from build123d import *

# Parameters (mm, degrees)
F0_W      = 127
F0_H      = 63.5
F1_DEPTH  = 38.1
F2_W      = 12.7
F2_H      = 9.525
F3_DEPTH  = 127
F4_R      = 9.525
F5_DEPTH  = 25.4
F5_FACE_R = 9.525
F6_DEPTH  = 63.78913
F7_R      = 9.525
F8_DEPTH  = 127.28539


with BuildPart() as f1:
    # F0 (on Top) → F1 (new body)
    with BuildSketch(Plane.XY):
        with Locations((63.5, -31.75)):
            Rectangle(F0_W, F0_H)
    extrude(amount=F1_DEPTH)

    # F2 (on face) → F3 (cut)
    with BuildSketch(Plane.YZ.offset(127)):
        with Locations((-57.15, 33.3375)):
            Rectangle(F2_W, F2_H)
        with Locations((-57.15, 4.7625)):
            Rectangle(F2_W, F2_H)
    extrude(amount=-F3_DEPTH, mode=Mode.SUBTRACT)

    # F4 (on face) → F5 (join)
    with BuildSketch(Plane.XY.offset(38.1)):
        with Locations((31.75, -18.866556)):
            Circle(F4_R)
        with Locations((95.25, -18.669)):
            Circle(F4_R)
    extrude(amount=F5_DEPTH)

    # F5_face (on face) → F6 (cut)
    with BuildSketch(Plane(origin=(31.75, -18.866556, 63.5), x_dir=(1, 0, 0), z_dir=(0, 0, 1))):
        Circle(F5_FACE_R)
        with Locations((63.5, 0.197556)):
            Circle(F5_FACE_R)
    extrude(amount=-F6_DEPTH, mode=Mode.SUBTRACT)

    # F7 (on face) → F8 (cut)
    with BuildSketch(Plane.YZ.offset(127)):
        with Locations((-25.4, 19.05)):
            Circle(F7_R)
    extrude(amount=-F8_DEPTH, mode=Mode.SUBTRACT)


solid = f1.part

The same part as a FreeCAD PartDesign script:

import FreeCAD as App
import Part
import Sketcher
from FreeCAD import Vector
Q = App.Units.Quantity

doc = App.newDocument("Part")
params = doc.addObject("Spreadsheet::Sheet", "Params")
for row, (alias, value) in enumerate([
    ("sketch1_width", "5 in"),
    ("sketch1_height", "2.5 in"),
    ("pad1_length", "1.5 in"),
    ("sketch2_width", "0.5 in"),
    ("sketch2_height", "0.375 in"),
    ("pocket1_length", "5 in"),
    ("sketch3_diameter", "0.75 in"),
    ("pad2_length", "1 in"),
    ("sketch4_diameter", "0.75 in"),
    ("pocket2_length", "63.78913 mm"),
    ("sketch5_diameter", "0.75 in"),
    ("pocket3_length", "127.28539 mm"),
], start=1):
    params.set(f"A{row}", alias)
    params.set(f"B{row}", "=" + value)
    params.setAlias(f"B{row}", alias)

body = doc.addObject("PartDesign::Body", "Body")

# Sketch on XY plane
sketch1 = doc.addObject("Sketcher::SketchObject", "Sketch")
body.addObject(sketch1)
sketch1.AttachmentSupport = (doc.XY_Plane, [""])
sketch1.MapMode = "FlatFace"
sketch1.addGeometry([
    Part.LineSegment(Vector(0, 0, 0), Vector(0, -64, 0)),
    Part.LineSegment(Vector(0, -64, 0), Vector(127, -64, 0)),
    Part.LineSegment(Vector(127, -64, 0), Vector(127, 0, 0)),
    Part.LineSegment(Vector(127, 0, 0), Vector(0, 0, 0)),
], False)
sketch1.addConstraint([
    Sketcher.Constraint("Coincident", 0, 2, 1, 1),
    Sketcher.Constraint("Coincident", 1, 2, 2, 1),
    Sketcher.Constraint("Coincident", 2, 2, 3, 1),
    Sketcher.Constraint("Coincident", 3, 2, 0, 1),
    Sketcher.Constraint("Vertical", 0),
    Sketcher.Constraint("Horizontal", 1),
    Sketcher.Constraint("Vertical", 2),
    Sketcher.Constraint("Horizontal", 3),
    Sketcher.Constraint("Coincident", 3, 2, -1, 1),
    Sketcher.Constraint("DistanceX", 1, 1, 1, 2, Q("5 in")),
    Sketcher.Constraint("DistanceY", 0, 2, 0, 1, Q("2.5 in")),
])
sketch1.setExpression("Constraints[9]", "Params.sketch1_width")
sketch1.setExpression("Constraints[10]", "Params.sketch1_height")
pad1 = doc.addObject("PartDesign::Pad", "Pad")
body.addObject(pad1)
pad1.Profile = sketch1
pad1.setExpression("Length", "Params.pad1_length")

# Sketch on YZ plane
sketch2 = doc.addObject("Sketcher::SketchObject", "Sketch001")
body.addObject(sketch2)
sketch2.AttachmentSupport = (doc.YZ_Plane, [""])
sketch2.MapMode = "FlatFace"
sketch2.AttachmentOffset = App.Placement(Vector(0, 0, 5 * 25.4), App.Rotation())
sketch2.addGeometry([
    Part.LineSegment(Vector(-64, 38, 0), Vector(-64, 29, 0)),  # 0
    Part.LineSegment(Vector(-64, 29, 0), Vector(-51, 29, 0)),  # 1
    Part.LineSegment(Vector(-51, 29, 0), Vector(-51, 38, 0)),  # 2
    Part.LineSegment(Vector(-51, 38, 0), Vector(-64, 38, 0)),  # 3
    Part.LineSegment(Vector(-64, 10, 0), Vector(-64, 0, 0)),  # 4
    Part.LineSegment(Vector(-64, 0, 0), Vector(-51, 0, 0)),  # 5
    Part.LineSegment(Vector(-51, 0, 0), Vector(-51, 10, 0)),  # 6
    Part.LineSegment(Vector(-51, 10, 0), Vector(-64, 10, 0)),  # 7
], False)
sketch2.addConstraint([
    Sketcher.Constraint("Coincident", 0, 2, 1, 1),
    Sketcher.Constraint("Coincident", 1, 2, 2, 1),
    Sketcher.Constraint("Coincident", 2, 2, 3, 1),
    Sketcher.Constraint("Coincident", 3, 2, 0, 1),
    Sketcher.Constraint("Coincident", 4, 2, 5, 1),
    Sketcher.Constraint("Coincident", 5, 2, 6, 1),
    Sketcher.Constraint("Coincident", 6, 2, 7, 1),
    Sketcher.Constraint("Coincident", 7, 2, 4, 1),
    Sketcher.Constraint("Vertical", 0),
    Sketcher.Constraint("Horizontal", 1),
    Sketcher.Constraint("Vertical", 2),
    Sketcher.Constraint("Horizontal", 3),
    Sketcher.Constraint("Vertical", 4),
    Sketcher.Constraint("Horizontal", 5),
    Sketcher.Constraint("Vertical", 6),
    Sketcher.Constraint("Horizontal", 7),
    Sketcher.Constraint("PointOnObject", 4, 2, -1),
    Sketcher.Constraint("Vertical", 3, 2, 4, 2),
    Sketcher.Constraint("Vertical", 2, 2, 5, 2),
    Sketcher.Constraint("Equal", 2, 4),
    Sketcher.Constraint("DistanceX", 1, 1, 1, 2, Q("0.5 in")),
    Sketcher.Constraint("DistanceX", 1, 2, -1, 1, Q("2 in")),
    Sketcher.Constraint("DistanceY", -1, 1, 2, 2, Q("1.5 in")),
    Sketcher.Constraint("DistanceY", 0, 2, 0, 1, Q("0.375 in")),
])
sketch2.setExpression("Constraints[20]", "Params.sketch2_width")
sketch2.setExpression("Constraints[23]", "Params.sketch2_height")
pocket1 = doc.addObject("PartDesign::Pocket", "Pocket")
body.addObject(pocket1)
pocket1.Profile = sketch2
pocket1.setExpression("Length", "Params.pocket1_length")

# Sketch on XY plane
sketch3 = doc.addObject("Sketcher::SketchObject", "Sketch002")
body.addObject(sketch3)
sketch3.AttachmentSupport = (doc.XY_Plane, [""])
sketch3.MapMode = "FlatFace"
sketch3.AttachmentOffset = App.Placement(Vector(0, 0, 1.5 * 25.4), App.Rotation())
sketch3.addGeometry([
    Part.Circle(Vector(32, -19, 0), Vector(0, 0, 1), 10),
    Part.Circle(Vector(95, -19, 0), Vector(0, 0, 1), 10),
], False)
sketch3.addConstraint([
    Sketcher.Constraint("Equal", 0, 1),
    Sketcher.Constraint("Diameter", 0, Q("0.75 in")),
    Sketcher.Constraint("DistanceX", 0, 3, 1, 3, Q("2.5 in")),
    Sketcher.Constraint("DistanceX", -1, 1, 0, 3, Q("1.25 in")),
    Sketcher.Constraint("DistanceY", 1, 3, -1, 1, Q("0.735 in")),
    Sketcher.Constraint("DistanceY", 0, 3, -1, 1, 18.866556),
])
sketch3.setExpression("Constraints[1]", "Params.sketch3_diameter")
pad2 = doc.addObject("PartDesign::Pad", "Pad001")
body.addObject(pad2)
pad2.Profile = sketch3
pad2.setExpression("Length", "Params.pad2_length")

# Sketch on XY plane
sketch4 = doc.addObject("Sketcher::SketchObject", "Sketch003")
body.addObject(sketch4)
sketch4.AttachmentSupport = (doc.XY_Plane, [""])
sketch4.MapMode = "FlatFace"
sketch4.AttachmentOffset = App.Placement(Vector(0, 0, 2.5 * 25.4), App.Rotation())
sketch4.addGeometry([
    Part.Circle(Vector(32, -19, 0), Vector(0, 0, 1), 10),
    Part.Circle(Vector(95, -19, 0), Vector(0, 0, 1), 10),
], False)
sketch4.addConstraint([
    Sketcher.Constraint("Equal", 0, 1),
    Sketcher.Constraint("Diameter", 0, Q("0.75 in")),
    Sketcher.Constraint("DistanceX", 0, 3, 1, 3, Q("2.5 in")),
    Sketcher.Constraint("DistanceX", -1, 1, 0, 3, Q("1.25 in")),
    Sketcher.Constraint("DistanceY", 1, 3, -1, 1, Q("0.735 in")),
    Sketcher.Constraint("DistanceY", 0, 3, -1, 1, 18.866556),
])
sketch4.setExpression("Constraints[1]", "Params.sketch4_diameter")
pocket2 = doc.addObject("PartDesign::Pocket", "Pocket001")
body.addObject(pocket2)
pocket2.Profile = sketch4
pocket2.setExpression("Length", "Params.pocket2_length")

# Sketch on YZ plane
sketch5 = doc.addObject("Sketcher::SketchObject", "Sketch004")
body.addObject(sketch5)
sketch5.AttachmentSupport = (doc.YZ_Plane, [""])
sketch5.MapMode = "FlatFace"
sketch5.AttachmentOffset = App.Placement(Vector(0, 0, 5 * 25.4), App.Rotation())
sketch5.addGeometry(Part.Circle(Vector(-25, 19, 0), Vector(0, 0, 1), 10), False)
sketch5.addConstraint([
    Sketcher.Constraint("Diameter", 0, Q("0.75 in")),
    Sketcher.Constraint("DistanceX", 0, 3, -1, 1, Q("1 in")),
    Sketcher.Constraint("DistanceY", -1, 1, 0, 3, Q("0.75 in")),
])
sketch5.setExpression("Constraints[0]", "Params.sketch5_diameter")
pocket3 = doc.addObject("PartDesign::Pocket", "Pocket002")
body.addObject(pocket3)
pocket3.Profile = sketch5
pocket3.setExpression("Length", "Params.pocket3_length")

doc.recompute()
